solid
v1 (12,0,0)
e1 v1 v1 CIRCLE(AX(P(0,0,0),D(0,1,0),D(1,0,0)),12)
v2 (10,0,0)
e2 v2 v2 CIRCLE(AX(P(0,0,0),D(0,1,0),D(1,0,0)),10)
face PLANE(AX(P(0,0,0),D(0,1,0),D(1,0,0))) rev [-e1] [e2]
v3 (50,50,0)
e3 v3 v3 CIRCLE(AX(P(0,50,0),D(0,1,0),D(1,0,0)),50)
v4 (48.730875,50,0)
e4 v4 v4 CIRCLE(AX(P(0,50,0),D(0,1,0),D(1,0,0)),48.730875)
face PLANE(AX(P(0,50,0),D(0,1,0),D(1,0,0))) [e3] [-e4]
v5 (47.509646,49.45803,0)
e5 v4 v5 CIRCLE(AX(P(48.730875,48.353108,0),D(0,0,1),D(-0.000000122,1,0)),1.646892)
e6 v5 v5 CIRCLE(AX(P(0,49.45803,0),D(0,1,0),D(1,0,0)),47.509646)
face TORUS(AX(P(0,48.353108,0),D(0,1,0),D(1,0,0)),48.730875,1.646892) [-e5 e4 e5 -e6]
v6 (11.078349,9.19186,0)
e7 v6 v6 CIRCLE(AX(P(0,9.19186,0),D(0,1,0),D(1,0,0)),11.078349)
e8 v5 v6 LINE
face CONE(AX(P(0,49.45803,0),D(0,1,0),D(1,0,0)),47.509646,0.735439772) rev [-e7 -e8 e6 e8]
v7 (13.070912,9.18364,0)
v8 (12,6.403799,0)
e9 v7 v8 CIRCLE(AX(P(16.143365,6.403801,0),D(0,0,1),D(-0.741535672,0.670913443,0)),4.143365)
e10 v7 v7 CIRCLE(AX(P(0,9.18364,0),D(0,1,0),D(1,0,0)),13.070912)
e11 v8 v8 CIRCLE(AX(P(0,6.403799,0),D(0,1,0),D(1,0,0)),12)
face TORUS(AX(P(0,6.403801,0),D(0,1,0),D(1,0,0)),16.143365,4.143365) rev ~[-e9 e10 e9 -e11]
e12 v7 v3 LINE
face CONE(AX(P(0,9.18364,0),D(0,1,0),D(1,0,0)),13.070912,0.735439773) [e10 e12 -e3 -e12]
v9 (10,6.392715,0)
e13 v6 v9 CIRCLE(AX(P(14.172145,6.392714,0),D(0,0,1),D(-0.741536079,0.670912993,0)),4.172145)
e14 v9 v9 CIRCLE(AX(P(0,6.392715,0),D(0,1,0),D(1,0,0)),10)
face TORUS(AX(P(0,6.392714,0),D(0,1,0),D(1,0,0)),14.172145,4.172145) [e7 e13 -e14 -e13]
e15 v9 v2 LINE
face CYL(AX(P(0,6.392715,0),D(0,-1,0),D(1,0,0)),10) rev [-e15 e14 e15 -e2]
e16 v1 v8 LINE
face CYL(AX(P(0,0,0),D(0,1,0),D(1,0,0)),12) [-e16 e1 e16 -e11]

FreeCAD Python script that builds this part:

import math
import FreeCAD as App
import Part
import Sketcher
Q = App.Units.Quantity

doc = App.newDocument("Part")
body = doc.addObject("PartDesign::Body", "Body")

# Sketch on XY plane
sketch1 = body.newObject("Sketcher::SketchObject", "Sketch")
sketch1.AttachmentSupport = (doc.getObject("XY_Plane"), [""])
sketch1.MapMode = "FlatFace"
sketch1.addGeometry(Part.LineSegment(App.Vector(10, 0, 0), App.Vector(12, 0, 0)), False)
sketch1.addGeometry(Part.LineSegment(App.Vector(12, 0, 0), App.Vector(12, 6.4, 0)), False)
sketch1.addGeometry(Part.ArcOfCircle(Part.Circle(App.Vector(16.1, 6.4, 0), App.Vector(0, 0, 1), 4.1), math.radians(138), math.radians(180)), False)
sketch1.addGeometry(Part.LineSegment(App.Vector(13.1, 9.2, 0), App.Vector(50, 50, 0)), False)
sketch1.addGeometry(Part.LineSegment(App.Vector(50, 50, 0), App.Vector(48.7, 50, 0)), False)
sketch1.addGeometry(Part.ArcOfCircle(Part.Circle(App.Vector(48.7, 48.4, 0), App.Vector(0, 0, 1), 1.6), math.radians(90), math.radians(138)), False)
sketch1.addGeometry(Part.LineSegment(App.Vector(47.5, 49.5, 0), App.Vector(11.1, 9.2, 0)), False)
sketch1.addGeometry(Part.ArcOfCircle(Part.Circle(App.Vector(14.2, 6.4, 0), App.Vector(0, 0, 1), 4.2), math.radians(138), math.radians(180)), False)
sketch1.addGeometry(Part.LineSegment(App.Vector(10, 6.4, 0), App.Vector(10, 0, 0)), False)
sketch1.addConstraint(Sketcher.Constraint("Coincident", 0, 2, 1, 1))
sketch1.addConstraint(Sketcher.Constraint("Tangent", 1, 2, 2, 2))
sketch1.addConstraint(Sketcher.Constraint("Tangent", 2, 1, 3, 1))
sketch1.addConstraint(Sketcher.Constraint("Coincident", 3, 2, 4, 1))
sketch1.addConstraint(Sketcher.Constraint("Tangent", 4, 2, 5, 1))
sketch1.addConstraint(Sketcher.Constraint("Tangent", 5, 2, 6, 1))
sketch1.addConstraint(Sketcher.Constraint("Tangent", 6, 2, 7, 1))
sketch1.addConstraint(Sketcher.Constraint("Tangent", 7, 2, 8, 1))
sketch1.addConstraint(Sketcher.Constraint("Coincident", 8, 2, 0, 1))
sketch1.addConstraint(Sketcher.Constraint("Horizontal", 0))
sketch1.addConstraint(Sketcher.Constraint("Vertical", 1))
sketch1.addConstraint(Sketcher.Constraint("Horizontal", 4))
sketch1.addConstraint(Sketcher.Constraint("Vertical", 8))
sketch1.addConstraint(Sketcher.Constraint("PointOnObject", 0, 2, -1))
sketch1.addConstraint(Sketcher.Constraint("Parallel", 3, 6))
sketch1.addConstraint(Sketcher.Constraint("DistanceX", 0, 1, 0, 2, Q("2 mm")))
sketch1.addConstraint(Sketcher.Constraint("DistanceX", -1, 1, 0, 2, Q("12 mm")))
sketch1.addConstraint(Sketcher.Constraint("DistanceX", -1, 1, 3, 2, Q("50 mm")))
sketch1.addConstraint(Sketcher.Constraint("DistanceY", -1, 1, 3, 2, Q("50 mm")))
sketch1.addConstraint(Sketcher.Constraint("DistanceY", 1, 1, 1, 2, Q("6.403799 mm")))
sketch1.addConstraint(Sketcher.Constraint("Radius", 2, Q("4.143365 mm")))
sketch1.addConstraint(Sketcher.Constraint("Radius", 5, Q("1.646892 mm")))
sketch1.addConstraint(Sketcher.Constraint("Radius", 7, Q("4.172145 mm")))
sketch1.addConstraint(Sketcher.Constraint("Distance", 6, Q("54.301048 mm")))
revolution = body.newObject("PartDesign::Revolution", "Revolution")
revolution.Profile = sketch1
revolution.ReferenceAxis = (sketch1, ["V_Axis"])
revolution.Angle = 360

doc.recompute()
